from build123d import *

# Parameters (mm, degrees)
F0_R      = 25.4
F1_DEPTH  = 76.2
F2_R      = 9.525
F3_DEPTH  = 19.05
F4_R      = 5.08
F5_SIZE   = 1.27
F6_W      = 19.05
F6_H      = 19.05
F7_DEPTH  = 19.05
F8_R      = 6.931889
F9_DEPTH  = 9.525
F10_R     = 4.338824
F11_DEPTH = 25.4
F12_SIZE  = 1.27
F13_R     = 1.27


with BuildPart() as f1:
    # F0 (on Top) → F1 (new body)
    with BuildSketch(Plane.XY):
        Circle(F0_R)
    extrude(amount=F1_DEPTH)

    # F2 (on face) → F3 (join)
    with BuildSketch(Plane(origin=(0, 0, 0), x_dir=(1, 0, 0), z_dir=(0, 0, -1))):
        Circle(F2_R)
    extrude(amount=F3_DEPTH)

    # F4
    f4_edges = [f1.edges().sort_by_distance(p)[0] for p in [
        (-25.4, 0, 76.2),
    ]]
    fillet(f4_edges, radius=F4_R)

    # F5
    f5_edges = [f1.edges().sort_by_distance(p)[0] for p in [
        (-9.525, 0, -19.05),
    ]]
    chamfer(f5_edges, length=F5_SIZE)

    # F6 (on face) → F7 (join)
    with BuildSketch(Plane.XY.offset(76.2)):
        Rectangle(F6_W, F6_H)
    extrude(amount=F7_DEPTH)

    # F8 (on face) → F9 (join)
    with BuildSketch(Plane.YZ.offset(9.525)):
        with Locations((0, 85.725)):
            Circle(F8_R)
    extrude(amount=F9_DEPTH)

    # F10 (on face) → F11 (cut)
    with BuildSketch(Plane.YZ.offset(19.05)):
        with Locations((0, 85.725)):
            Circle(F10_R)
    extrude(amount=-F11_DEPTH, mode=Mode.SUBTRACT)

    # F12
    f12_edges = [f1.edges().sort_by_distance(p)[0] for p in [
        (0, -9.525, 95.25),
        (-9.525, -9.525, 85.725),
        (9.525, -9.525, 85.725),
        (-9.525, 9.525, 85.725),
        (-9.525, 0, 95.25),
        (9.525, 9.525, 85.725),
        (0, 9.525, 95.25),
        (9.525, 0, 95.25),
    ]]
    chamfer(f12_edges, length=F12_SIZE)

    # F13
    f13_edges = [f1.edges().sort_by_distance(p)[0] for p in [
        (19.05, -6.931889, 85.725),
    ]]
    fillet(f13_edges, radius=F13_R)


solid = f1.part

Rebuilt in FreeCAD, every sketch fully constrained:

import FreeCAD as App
import Part
import Sketcher
from FreeCAD import Vector
Q = App.Units.Quantity


def edges_at(feature, points):
    """Names of the edges that pass closest to the given points."""
    edges = feature.Shape.Edges
    near = lambda p: min(range(len(edges)), key=lambda i: edges[i].distToShape(Part.Vertex(*p))[0])
    return sorted({f"Edge{near(p) + 1}" for p in points})

doc = App.newDocument("Part")
body = doc.addObject("PartDesign::Body", "Body")

sketch1 = body.newObject("Sketcher::SketchObject", "Sketch")
sketch1.AttachmentSupport = (doc.getObject("XY_Plane"), [""])
sketch1.MapMode = "FlatFace"
sketch1.addGeometry(Part.Circle(Vector(0, 0, 0), Vector(0, 0, 1), 25), False)
sketch1.addConstraint(Sketcher.Constraint("Coincident", 0, 3, -1, 1))
sketch1.addConstraint(Sketcher.Constraint("Diameter", 0, Q("2 in")))
pad1 = body.newObject("PartDesign::Pad", "Pad")
pad1.Profile = sketch1
pad1.Length = Q("3 in")

sketch2 = body.newObject("Sketcher::SketchObject", "Sketch001")
sketch2.AttachmentSupport = (doc.getObject("XY_Plane"), [""])
sketch2.MapMode = "FlatFace"
sketch2.addGeometry(Part.Circle(Vector(0, 0, 0), Vector(0, 0, 1), 10), False)
sketch2.addConstraint(Sketcher.Constraint("Coincident", 0, 3, -1, 1))
sketch2.addConstraint(Sketcher.Constraint("Diameter", 0, Q("0.75 in")))
pad2 = body.newObject("PartDesign::Pad", "Pad001")
pad2.Profile = sketch2
pad2.Length = Q("0.75 in")
pad2.Reversed = True
doc.recompute()

fillet = body.newObject("PartDesign::Fillet", "Fillet")
fillet.Base = (pad2, edges_at(pad2, [(-25.4, 0, 76.2)]))
fillet.Radius = Q("0.2 in")
doc.recompute()

chamfer = body.newObject("PartDesign::Chamfer", "Chamfer")
chamfer.Base = (fillet, edges_at(fillet, [(-9.525, 0, -19.05)]))
chamfer.Size = Q("0.05 in")

sketch3 = body.newObject("Sketcher::SketchObject", "Sketch002")
sketch3.AttachmentSupport = (doc.getObject("XY_Plane"), [""])
sketch3.MapMode = "FlatFace"
sketch3.AttachmentOffset = App.Placement(Vector(0, 0, 3 * 25.4), App.Rotation())
sketch3.addGeometry(Part.LineSegment(Vector(-10, 10, 0), Vector(-10, -10, 0)), False)
sketch3.addGeometry(Part.LineSegment(Vector(-10, -10, 0), Vector(10, -10, 0)), False)
sketch3.addGeometry(Part.LineSegment(Vector(10, -10, 0), Vector(10, 10, 0)), False)
sketch3.addGeometry(Part.LineSegment(Vector(10, 10, 0), Vector(-10, 10, 0)), False)
sketch3.addConstraint(Sketcher.Constraint("Coincident", 0, 2, 1, 1))
sketch3.addConstraint(Sketcher.Constraint("Coincident", 1, 2, 2, 1))
sketch3.addConstraint(Sketcher.Constraint("Coincident", 2, 2, 3, 1))
sketch3.addConstraint(Sketcher.Constraint("Coincident", 3, 2, 0, 1))
sketch3.addConstraint(Sketcher.Constraint("Vertical", 0))
sketch3.addConstraint(Sketcher.Constraint("Horizontal", 1))
sketch3.addConstraint(Sketcher.Constraint("Vertical", 2))
sketch3.addConstraint(Sketcher.Constraint("Horizontal", 3))
sketch3.addConstraint(Sketcher.Constraint("Symmetric", 0, 2, 2, 2, -1, 1))
sketch3.addConstraint(Sketcher.Constraint("Equal", 3, 0))
sketch3.addConstraint(Sketcher.Constraint("DistanceX", 1, 1, 1, 2, Q("0.75 in")))
pad3 = body.newObject("PartDesign::Pad", "Pad002")
pad3.Profile = sketch3
pad3.Length = Q("0.75 in")

sketch4 = body.newObject("Sketcher::SketchObject", "Sketch003")
sketch4.AttachmentSupport = (doc.getObject("YZ_Plane"), [""])
sketch4.MapMode = "FlatFace"
sketch4.AttachmentOffset = App.Placement(Vector(0, 0, 0.375 * 25.4), App.Rotation())
sketch4.addGeometry(Part.Circle(Vector(0, 86, 0), Vector(0, 0, 1), 7), False)
sketch4.addConstraint(Sketcher.Constraint("PointOnObject", 0, 3, -2))
sketch4.addConstraint(Sketcher.Constraint("DistanceY", -1, 1, 0, 3, Q("3.375 in")))
sketch4.addConstraint(Sketcher.Constraint("Diameter", 0, Q("13.863778 mm")))
pad4 = body.newObject("PartDesign::Pad", "Pad003")
pad4.Profile = sketch4
pad4.Length = Q("0.375 in")

sketch5 = body.newObject("Sketcher::SketchObject", "Sketch004")
sketch5.AttachmentSupport = (doc.getObject("YZ_Plane"), [""])
sketch5.MapMode = "FlatFace"
sketch5.AttachmentOffset = App.Placement(Vector(0, 0, 0.75 * 25.4), App.Rotation())
sketch5.addGeometry(Part.Circle(Vector(0, 85.7, 0), Vector(0, 0, 1), 4.3), False)
sketch5.addConstraint(Sketcher.Constraint("PointOnObject", 0, 3, -2))
sketch5.addConstraint(Sketcher.Constraint("DistanceY", -1, 1, 0, 3, Q("3.375 in")))
sketch5.addConstraint(Sketcher.Constraint("Diameter", 0, Q("8.677648 mm")))
pocket1 = body.newObject("PartDesign::Pocket", "Pocket")
pocket1.Profile = sketch5
pocket1.Length = Q("1 in")
doc.recompute()

chamfer2 = body.newObject("PartDesign::Chamfer", "Chamfer001")
chamfer2.Base = (pocket1, edges_at(pocket1, [
    (0, -9.525, 95.25),
    (-9.525, -9.525, 85.725),
    (9.525, -9.525, 85.725),
    (-9.525, 9.525, 85.725),
    (-9.525, 0, 95.25),
    (9.525, 9.525, 85.725),
    (0, 9.525, 95.25),
    (9.525, 0, 95.25),
]))
chamfer2.Size = Q("0.05 in")
doc.recompute()

fillet2 = body.newObject("PartDesign::Fillet", "Fillet001")
fillet2.Base = (chamfer2, edges_at(chamfer2, [(19.05, -6.932, 85.725)]))
fillet2.Radius = Q("0.05 in")

doc.recompute()
